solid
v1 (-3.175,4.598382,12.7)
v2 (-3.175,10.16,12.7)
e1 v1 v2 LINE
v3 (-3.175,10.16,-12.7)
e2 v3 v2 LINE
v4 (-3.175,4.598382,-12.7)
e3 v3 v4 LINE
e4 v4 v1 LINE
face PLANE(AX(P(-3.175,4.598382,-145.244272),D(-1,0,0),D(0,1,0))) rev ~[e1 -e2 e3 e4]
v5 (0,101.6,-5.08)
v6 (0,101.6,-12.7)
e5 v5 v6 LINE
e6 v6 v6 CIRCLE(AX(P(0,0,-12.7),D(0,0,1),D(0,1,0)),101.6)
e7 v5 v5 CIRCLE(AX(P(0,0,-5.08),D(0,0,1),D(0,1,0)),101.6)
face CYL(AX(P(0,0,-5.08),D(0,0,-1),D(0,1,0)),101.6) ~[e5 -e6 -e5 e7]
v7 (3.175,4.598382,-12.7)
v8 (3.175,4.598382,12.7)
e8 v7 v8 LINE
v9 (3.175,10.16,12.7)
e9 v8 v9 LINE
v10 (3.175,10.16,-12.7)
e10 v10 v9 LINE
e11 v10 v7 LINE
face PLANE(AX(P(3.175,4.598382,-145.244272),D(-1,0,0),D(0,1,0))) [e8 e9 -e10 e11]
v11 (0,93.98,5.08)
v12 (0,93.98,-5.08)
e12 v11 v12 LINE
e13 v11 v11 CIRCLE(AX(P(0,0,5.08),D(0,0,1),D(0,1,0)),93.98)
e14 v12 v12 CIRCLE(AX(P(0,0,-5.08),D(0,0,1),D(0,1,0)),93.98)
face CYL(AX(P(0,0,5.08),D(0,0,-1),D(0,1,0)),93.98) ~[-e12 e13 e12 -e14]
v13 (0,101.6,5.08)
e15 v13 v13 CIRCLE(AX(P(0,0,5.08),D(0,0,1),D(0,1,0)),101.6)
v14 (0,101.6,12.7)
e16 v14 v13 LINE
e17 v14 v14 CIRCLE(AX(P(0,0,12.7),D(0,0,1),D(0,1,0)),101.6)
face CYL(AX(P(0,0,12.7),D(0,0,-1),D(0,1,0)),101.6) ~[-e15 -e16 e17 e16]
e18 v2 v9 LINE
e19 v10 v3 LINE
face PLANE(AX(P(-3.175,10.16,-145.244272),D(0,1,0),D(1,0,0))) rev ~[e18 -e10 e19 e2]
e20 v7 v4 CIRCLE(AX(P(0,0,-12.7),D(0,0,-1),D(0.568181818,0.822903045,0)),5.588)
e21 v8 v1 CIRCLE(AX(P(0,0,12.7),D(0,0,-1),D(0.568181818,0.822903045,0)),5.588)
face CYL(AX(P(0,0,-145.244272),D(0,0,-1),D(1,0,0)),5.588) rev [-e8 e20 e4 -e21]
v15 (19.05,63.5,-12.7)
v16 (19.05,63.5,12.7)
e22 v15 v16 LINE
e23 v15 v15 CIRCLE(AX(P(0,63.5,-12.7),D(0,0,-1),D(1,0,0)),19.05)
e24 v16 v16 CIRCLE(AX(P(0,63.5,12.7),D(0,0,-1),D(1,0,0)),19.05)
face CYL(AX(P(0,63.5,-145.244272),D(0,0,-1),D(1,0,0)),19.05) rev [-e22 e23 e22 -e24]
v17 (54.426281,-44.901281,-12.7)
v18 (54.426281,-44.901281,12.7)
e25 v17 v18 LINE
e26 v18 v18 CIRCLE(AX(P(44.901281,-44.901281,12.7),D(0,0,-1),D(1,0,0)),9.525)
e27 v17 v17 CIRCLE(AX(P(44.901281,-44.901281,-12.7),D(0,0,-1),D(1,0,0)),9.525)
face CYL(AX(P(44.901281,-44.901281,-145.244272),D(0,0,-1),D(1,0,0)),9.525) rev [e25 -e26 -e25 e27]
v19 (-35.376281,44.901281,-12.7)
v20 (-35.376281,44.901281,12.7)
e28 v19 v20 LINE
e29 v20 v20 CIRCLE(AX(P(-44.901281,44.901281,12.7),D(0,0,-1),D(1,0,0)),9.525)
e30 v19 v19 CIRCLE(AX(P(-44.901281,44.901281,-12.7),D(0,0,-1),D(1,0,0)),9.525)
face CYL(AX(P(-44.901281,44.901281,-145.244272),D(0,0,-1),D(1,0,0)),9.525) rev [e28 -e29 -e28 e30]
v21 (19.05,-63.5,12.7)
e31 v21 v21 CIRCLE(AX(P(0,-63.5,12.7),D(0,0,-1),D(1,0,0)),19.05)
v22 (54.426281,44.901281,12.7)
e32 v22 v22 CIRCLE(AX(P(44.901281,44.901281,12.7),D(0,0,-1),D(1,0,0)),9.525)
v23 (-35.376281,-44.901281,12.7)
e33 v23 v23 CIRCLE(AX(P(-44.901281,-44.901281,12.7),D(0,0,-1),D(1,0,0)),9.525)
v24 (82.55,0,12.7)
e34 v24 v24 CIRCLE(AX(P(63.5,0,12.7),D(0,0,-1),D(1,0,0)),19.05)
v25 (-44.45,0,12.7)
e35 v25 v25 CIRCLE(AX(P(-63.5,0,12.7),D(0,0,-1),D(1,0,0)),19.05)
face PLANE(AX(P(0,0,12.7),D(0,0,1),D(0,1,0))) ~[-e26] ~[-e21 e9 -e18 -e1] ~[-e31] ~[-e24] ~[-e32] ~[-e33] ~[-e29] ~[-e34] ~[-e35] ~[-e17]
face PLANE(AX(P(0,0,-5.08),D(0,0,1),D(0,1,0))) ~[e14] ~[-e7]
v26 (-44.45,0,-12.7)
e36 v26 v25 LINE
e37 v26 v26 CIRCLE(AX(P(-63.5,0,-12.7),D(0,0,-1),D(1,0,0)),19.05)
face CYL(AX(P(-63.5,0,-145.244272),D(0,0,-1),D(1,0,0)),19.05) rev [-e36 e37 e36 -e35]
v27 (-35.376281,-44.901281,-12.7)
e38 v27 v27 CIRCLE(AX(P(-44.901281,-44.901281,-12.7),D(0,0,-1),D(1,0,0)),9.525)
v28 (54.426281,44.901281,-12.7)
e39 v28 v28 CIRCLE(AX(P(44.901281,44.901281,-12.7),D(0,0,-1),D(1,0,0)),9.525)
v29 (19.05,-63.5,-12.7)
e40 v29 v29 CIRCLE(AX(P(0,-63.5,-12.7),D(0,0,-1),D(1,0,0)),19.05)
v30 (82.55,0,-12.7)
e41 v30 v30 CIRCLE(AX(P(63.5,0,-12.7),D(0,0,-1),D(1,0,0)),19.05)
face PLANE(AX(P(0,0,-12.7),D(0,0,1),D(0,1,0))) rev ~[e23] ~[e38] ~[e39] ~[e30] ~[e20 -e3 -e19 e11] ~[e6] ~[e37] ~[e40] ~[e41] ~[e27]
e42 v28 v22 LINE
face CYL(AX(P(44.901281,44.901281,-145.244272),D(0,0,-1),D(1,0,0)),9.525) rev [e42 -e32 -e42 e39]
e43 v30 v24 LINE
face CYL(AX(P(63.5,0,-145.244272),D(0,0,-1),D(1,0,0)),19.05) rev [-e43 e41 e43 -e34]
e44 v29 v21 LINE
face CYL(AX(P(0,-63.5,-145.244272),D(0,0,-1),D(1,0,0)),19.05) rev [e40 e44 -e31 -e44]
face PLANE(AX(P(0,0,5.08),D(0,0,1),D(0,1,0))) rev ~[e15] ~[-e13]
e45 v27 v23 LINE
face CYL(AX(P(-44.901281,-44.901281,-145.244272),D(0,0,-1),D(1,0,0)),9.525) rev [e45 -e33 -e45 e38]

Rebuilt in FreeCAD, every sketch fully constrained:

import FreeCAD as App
import Part
import Sketcher
Q = App.Units.Quantity


def add_polygon(sketch, points):
    """Adds a closed chain of lines whose ends are joined by coincident constraints."""
    first, n = sketch.GeometryCount, len(points)
    for a, b in zip(points, points[1:] + points[:1]):
        sketch.addGeometry(Part.LineSegment(App.Vector(*a, 0), App.Vector(*b, 0)), False)
    for i in range(n):
        sketch.addConstraint(Sketcher.Constraint("Coincident", first + i, 2, first + (i + 1) % n, 1))

doc = App.newDocument("Part")
body = doc.addObject("PartDesign::Body", "Body")

# Sketch on YZ plane
sketch1 = doc.addObject("Sketcher::SketchObject", "Sketch")
body.addObject(sketch1)
sketch1.AttachmentSupport = (doc.YZ_Plane, [""])
sketch1.MapMode = "FlatFace"
add_polygon(sketch1, [(0, 13), (0, -13), (102, -13), (102, -5), (94, -5), (94, 5), (102, 5), (102, 13)])  # lines 0-7
sketch1.addConstraint([
    Sketcher.Constraint("Vertical", 0),
    Sketcher.Constraint("Horizontal", 1),
    Sketcher.Constraint("Vertical", 2),
    Sketcher.Constraint("Horizontal", 3),
    Sketcher.Constraint("Vertical", 4),
    Sketcher.Constraint("Horizontal", 5),
    Sketcher.Constraint("Vertical", 6),
    Sketcher.Constraint("Horizontal", 7),
    Sketcher.Constraint("Symmetric", 0, 2, 7, 2, -1, 1),
    Sketcher.Constraint("Symmetric", 2, 2, 5, 2, -1),
    Sketcher.Constraint("Equal", 5, 2),
    Sketcher.Constraint("DistanceX", 1, 1, 1, 2, Q("4 in")),
    Sketcher.Constraint("DistanceY", 0, 2, 0, 1, Q("1 in")),
    Sketcher.Constraint("DistanceX", 3, 2, 3, 1, Q("0.3 in")),
])
revolution = doc.addObject("PartDesign::Revolution", "Revolution")
body.addObject(revolution)
revolution.Profile = sketch1
revolution.ReferenceAxis = (sketch1, ["V_Axis"])
revolution.Angle = 360

# Sketch on XY plane
sketch2 = doc.addObject("Sketcher::SketchObject", "Sketch001")
body.addObject(sketch2)
sketch2.AttachmentSupport = (doc.XY_Plane, [""])
sketch2.MapMode = "FlatFace"
sketch2.addGeometry([
    Part.Circle(App.Vector(0, -64, 0), App.Vector(0, 0, 1), 19),  # 0
    Part.Circle(App.Vector(45, -45, 0), App.Vector(0, 0, 1), 10),  # 1
    Part.Circle(App.Vector(-64, 0, 0), App.Vector(0, 0, 1), 19),  # 2
    Part.Circle(App.Vector(-45, -45, 0), App.Vector(0, 0, 1), 10),  # 3
    Part.Circle(App.Vector(0, 64, 0), App.Vector(0, 0, 1), 19),  # 4
    Part.Circle(App.Vector(-45, 45, 0), App.Vector(0, 0, 1), 10),  # 5
    Part.Circle(App.Vector(64, 0, 0), App.Vector(0, 0, 1), 19),  # 6
    Part.Circle(App.Vector(45, 45, 0), App.Vector(0, 0, 1), 10),  # 7
], False)
sketch2.addConstraint([
    Sketcher.Constraint("Equal", 0, 2),
    Sketcher.Constraint("Equal", 1, 3),
    Sketcher.Constraint("Equal", 2, 4),
    Sketcher.Constraint("Equal", 3, 5),
    Sketcher.Constraint("Equal", 4, 6),
    Sketcher.Constraint("Equal", 5, 7),
    Sketcher.Constraint("Symmetric", 0, 3, 4, 3, -1, 1),
    Sketcher.Constraint("Symmetric", 1, 3, 5, 3, -1, 1),
    Sketcher.Constraint("Symmetric", 2, 3, 6, 3, -1, 1),
    Sketcher.Constraint("Symmetric", 3, 3, 7, 3, -1, 1),
    Sketcher.Constraint("Symmetric", 1, 3, 3, 3, -2),
    Sketcher.Constraint("PointOnObject", 0, 3, -2),
    Sketcher.Constraint("PointOnObject", 2, 3, -1),
    Sketcher.Constraint("Diameter", 0, Q("1.5 in")),
    Sketcher.Constraint("Diameter", 1, Q("0.75 in")),
    Sketcher.Constraint("DistanceY", 0, 3, 4, 3, Q("5 in")),
    Sketcher.Constraint("DistanceX", 2, 3, -1, 1, Q("2.5 in")),
    Sketcher.Constraint("DistanceX", -1, 1, 1, 3, Q("44.901281 mm")),
    Sketcher.Constraint("DistanceY", 1, 3, -1, 1, Q("44.901281 mm")),
])
pocket1 = doc.addObject("PartDesign::Pocket", "Pocket")
body.addObject(pocket1)
pocket1.Profile = sketch2
pocket1.Type = "ThroughAll"
pocket1.Midplane = True

# Sketch on XY plane
sketch3 = doc.addObject("Sketcher::SketchObject", "Sketch002")
body.addObject(sketch3)
sketch3.AttachmentSupport = (doc.XY_Plane, [""])
sketch3.MapMode = "FlatFace"
sketch3.addGeometry(Part.Circle(App.Vector(0, 0, 0), App.Vector(0, 0, 1), 6), False)
sketch3.addConstraint([
    Sketcher.Constraint("Coincident", 0, 3, -1, 1),
    Sketcher.Constraint("Diameter", 0, Q("0.44 in")),
])
pocket2 = doc.addObject("PartDesign::Pocket", "Pocket001")
body.addObject(pocket2)
pocket2.Profile = sketch3
pocket2.Type = "ThroughAll"
pocket2.Midplane = True

# Sketch on XY plane
sketch4 = doc.addObject("Sketcher::SketchObject", "Sketch003")
body.addObject(sketch4)
sketch4.AttachmentSupport = (doc.XY_Plane, [""])
sketch4.MapMode = "FlatFace"
add_polygon(sketch4, [(-3, 10), (-3, 5), (3, 5), (3, 10)])  # lines 0-3
sketch4.addConstraint([
    Sketcher.Constraint("Vertical", 0),
    Sketcher.Constraint("Horizontal", 1),
    Sketcher.Constraint("Vertical", 2),
    Sketcher.Constraint("Horizontal", 3),
    Sketcher.Constraint("DistanceX", 1, 1, 1, 2, Q("0.25 in")),
    Sketcher.Constraint("DistanceY", -1, 1, 2, 2, Q("0.4 in")),
    Sketcher.Constraint("DistanceX", 0, 2, -1, 1, Q("0.125 in")),
    Sketcher.Constraint("DistanceY", 0, 2, 0, 1, Q("5.561618 mm")),
])
pocket3 = doc.addObject("PartDesign::Pocket", "Pocket002")
body.addObject(pocket3)
pocket3.Profile = sketch4
pocket3.Type = "ThroughAll"
pocket3.Midplane = True

doc.recompute()
